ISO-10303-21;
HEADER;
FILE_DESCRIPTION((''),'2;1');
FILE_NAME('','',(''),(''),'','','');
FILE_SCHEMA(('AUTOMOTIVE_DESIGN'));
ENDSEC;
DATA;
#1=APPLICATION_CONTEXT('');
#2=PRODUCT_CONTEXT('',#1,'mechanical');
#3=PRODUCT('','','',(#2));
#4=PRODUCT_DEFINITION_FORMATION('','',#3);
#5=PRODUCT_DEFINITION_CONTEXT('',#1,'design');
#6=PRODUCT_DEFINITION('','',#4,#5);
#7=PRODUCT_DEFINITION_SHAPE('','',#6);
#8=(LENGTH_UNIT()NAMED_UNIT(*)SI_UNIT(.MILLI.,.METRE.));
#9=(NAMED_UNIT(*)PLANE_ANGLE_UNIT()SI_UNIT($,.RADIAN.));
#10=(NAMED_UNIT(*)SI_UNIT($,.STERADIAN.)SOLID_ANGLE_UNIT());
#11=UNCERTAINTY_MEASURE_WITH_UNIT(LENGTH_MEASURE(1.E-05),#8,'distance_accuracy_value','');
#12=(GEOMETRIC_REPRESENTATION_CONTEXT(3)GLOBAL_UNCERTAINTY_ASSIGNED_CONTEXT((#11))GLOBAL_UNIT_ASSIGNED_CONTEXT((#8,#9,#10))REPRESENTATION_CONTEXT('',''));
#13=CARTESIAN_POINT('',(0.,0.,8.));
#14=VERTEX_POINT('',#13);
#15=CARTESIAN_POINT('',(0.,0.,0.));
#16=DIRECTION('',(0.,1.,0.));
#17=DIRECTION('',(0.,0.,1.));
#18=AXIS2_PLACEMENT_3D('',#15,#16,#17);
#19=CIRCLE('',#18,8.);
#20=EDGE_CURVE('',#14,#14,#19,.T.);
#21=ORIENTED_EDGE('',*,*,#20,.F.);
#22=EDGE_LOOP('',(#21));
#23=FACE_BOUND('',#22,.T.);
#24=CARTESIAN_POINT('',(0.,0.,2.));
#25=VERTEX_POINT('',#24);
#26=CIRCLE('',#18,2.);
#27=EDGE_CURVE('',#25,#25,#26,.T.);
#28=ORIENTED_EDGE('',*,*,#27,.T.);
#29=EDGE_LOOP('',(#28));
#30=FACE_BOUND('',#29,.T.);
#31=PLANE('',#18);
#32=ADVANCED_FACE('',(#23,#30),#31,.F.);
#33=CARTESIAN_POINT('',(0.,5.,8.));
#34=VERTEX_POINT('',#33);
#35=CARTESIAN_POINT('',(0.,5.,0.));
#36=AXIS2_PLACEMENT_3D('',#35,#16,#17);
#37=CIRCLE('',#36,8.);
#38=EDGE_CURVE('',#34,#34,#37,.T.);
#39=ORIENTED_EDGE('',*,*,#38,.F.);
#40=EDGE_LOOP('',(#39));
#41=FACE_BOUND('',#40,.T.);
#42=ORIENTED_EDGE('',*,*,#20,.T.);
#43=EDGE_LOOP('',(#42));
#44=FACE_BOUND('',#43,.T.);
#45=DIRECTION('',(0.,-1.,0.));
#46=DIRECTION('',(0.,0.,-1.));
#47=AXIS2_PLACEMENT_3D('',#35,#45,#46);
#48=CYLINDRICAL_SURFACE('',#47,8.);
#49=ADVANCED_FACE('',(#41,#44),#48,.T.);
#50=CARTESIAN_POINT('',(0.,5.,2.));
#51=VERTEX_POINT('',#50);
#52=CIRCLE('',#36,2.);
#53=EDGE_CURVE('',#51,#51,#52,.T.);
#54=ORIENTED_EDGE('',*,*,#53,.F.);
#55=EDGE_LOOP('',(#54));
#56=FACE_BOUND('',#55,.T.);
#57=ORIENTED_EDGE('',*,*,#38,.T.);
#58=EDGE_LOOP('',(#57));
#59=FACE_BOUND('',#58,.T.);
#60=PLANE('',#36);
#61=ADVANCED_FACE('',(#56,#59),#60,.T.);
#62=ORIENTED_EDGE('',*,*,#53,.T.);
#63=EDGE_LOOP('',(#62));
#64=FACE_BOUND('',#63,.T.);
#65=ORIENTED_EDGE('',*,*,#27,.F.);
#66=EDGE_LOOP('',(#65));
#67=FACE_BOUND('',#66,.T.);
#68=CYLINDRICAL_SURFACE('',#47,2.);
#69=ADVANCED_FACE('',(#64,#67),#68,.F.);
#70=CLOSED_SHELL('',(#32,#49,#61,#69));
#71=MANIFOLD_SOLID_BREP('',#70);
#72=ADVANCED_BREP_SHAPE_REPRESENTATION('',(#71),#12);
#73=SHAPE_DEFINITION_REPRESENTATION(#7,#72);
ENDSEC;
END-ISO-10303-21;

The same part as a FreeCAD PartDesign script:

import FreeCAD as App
import Part
import Sketcher

doc = App.newDocument("Part")
params = doc.addObject("Spreadsheet::Sheet", "Params")
for row, (alias, value) in enumerate([
    ("sketch1_diameter", "16 mm"),
    ("sketch1_diameter2", "4 mm"),
    ("pad1_length", "5 mm"),
], start=1):
    params.set(f"A{row}", alias)
    params.set(f"B{row}", "=" + value)
    params.setAlias(f"B{row}", alias)

body = doc.addObject("PartDesign::Body", "Body")

# Sketch on XZ plane
sketch1 = body.newObject("Sketcher::SketchObject", "Sketch")
sketch1.AttachmentSupport = (doc.getObject("XZ_Plane"), [""])
sketch1.MapMode = "FlatFace"
sketch1.addGeometry([
    Part.Circle(App.Vector(0, 0, 0), App.Vector(0, 0, 1), 8),
    Part.Circle(App.Vector(0, 0, 0), App.Vector(0, 0, 1), 2),
], False)
sketch1.addConstraint([
    Sketcher.Constraint("Coincident", 0, 3, -1, 1),
    Sketcher.Constraint("Coincident", 1, 3, -1, 1),
    Sketcher.Constraint("Diameter", 0, 16.0),
    Sketcher.Constraint("Diameter", 1, 4.0),
])
sketch1.setExpression("Constraints[2]", "Params.sketch1_diameter")
sketch1.setExpression("Constraints[3]", "Params.sketch1_diameter2")
pad1 = body.newObject("PartDesign::Pad", "Pad")
pad1.Profile = sketch1
pad1.setExpression("Length", "Params.pad1_length")
pad1.Reversed = True

doc.recompute()
